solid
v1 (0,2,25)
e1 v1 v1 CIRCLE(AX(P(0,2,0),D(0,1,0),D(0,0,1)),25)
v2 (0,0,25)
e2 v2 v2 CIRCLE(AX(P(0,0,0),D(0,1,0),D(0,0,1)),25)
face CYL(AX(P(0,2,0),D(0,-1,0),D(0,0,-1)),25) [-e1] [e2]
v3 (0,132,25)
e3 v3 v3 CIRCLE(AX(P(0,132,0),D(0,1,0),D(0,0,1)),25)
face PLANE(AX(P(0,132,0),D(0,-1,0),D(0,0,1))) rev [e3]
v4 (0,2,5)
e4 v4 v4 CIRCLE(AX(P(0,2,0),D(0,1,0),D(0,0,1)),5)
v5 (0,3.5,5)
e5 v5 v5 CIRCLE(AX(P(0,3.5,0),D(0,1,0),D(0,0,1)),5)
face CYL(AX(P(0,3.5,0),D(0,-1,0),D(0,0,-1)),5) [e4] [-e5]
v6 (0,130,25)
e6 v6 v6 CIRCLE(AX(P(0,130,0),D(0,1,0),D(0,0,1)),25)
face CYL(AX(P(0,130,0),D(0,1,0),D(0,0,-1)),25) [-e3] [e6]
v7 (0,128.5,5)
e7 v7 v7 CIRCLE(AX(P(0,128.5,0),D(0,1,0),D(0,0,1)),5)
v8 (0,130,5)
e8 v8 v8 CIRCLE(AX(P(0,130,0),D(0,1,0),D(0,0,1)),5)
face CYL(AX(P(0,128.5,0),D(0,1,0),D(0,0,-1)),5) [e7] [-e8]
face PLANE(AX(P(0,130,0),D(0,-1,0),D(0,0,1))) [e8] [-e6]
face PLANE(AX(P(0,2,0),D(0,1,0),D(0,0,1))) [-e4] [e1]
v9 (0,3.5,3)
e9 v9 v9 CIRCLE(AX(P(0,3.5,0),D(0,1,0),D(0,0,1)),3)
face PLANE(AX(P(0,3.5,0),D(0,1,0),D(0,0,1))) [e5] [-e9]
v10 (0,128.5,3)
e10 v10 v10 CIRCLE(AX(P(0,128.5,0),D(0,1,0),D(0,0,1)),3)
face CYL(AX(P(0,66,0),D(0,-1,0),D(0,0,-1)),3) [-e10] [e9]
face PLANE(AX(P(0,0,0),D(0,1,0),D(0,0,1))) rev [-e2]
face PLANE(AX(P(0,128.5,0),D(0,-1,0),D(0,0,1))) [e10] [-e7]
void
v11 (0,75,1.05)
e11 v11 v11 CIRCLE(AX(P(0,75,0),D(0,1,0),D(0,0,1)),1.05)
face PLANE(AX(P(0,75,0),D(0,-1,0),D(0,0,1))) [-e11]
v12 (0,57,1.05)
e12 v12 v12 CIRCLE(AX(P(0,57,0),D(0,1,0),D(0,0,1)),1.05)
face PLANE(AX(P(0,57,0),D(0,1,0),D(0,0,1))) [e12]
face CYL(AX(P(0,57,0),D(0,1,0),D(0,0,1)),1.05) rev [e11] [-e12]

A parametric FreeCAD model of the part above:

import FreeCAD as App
import Part
import Sketcher

V = App.Vector
Q = App.Units.Quantity

doc = App.newDocument("Part")
body = doc.addObject("PartDesign::Body", "Body")

sketch1 = body.newObject("Sketcher::SketchObject", "Sketch")
sketch1.AttachmentSupport = (doc.getObject("XZ_Plane"), [""])
sketch1.MapMode = "FlatFace"
sketch1.addGeometry(Part.Circle(V(0, 0, 0), V(0, 0, 1), 25), False)
sketch1.addConstraint([
    Sketcher.Constraint("Coincident", 0, 3, -1, 1),
    Sketcher.Constraint("Diameter", 0, Q("50 mm")),
])
pad1 = body.newObject("PartDesign::Pad", "Pad")
pad1.Profile = sketch1
pad1.Length = 2
pad1.Reversed = True

sketch2 = body.newObject("Sketcher::SketchObject", "Sketch001")
sketch2.AttachmentSupport = (doc.getObject("XZ_Plane"), [""])
sketch2.MapMode = "FlatFace"
sketch2.AttachmentOffset = App.Placement(V(0, 0, -2), App.Rotation())
sketch2.addGeometry(Part.Circle(V(0, 0, 0), V(0, 0, 1), 5), False)
sketch2.addConstraint([
    Sketcher.Constraint("Coincident", 0, 3, -1, 1),
    Sketcher.Constraint("Diameter", 0, Q("10 mm")),
])
pad2 = body.newObject("PartDesign::Pad", "Pad001")
pad2.Profile = sketch2
pad2.Length = 1.5
pad2.Reversed = True

sketch3 = body.newObject("Sketcher::SketchObject", "Sketch002")
sketch3.AttachmentSupport = (doc.getObject("XZ_Plane"), [""])
sketch3.MapMode = "FlatFace"
sketch3.AttachmentOffset = App.Placement(V(0, 0, -3.5), App.Rotation())
sketch3.addGeometry(Part.Circle(V(0, 0, 0), V(0, 0, 1), 3), False)
sketch3.addConstraint([
    Sketcher.Constraint("Coincident", 0, 3, -1, 1),
    Sketcher.Constraint("Diameter", 0, Q("6 mm")),
])
pad3 = body.newObject("PartDesign::Pad", "Pad002")
pad3.Profile = sketch3
pad3.Length = 62.5
pad3.Reversed = True

sketch4 = body.newObject("Sketcher::SketchObject", "Sketch003")
sketch4.AttachmentSupport = (doc.getObject("XZ_Plane"), [""])
sketch4.MapMode = "FlatFace"
sketch4.AttachmentOffset = App.Placement(V(0, 0, -66), App.Rotation())
sketch4.addGeometry(Part.Circle(V(0, 0, 0), V(0, 0, 1), 1.1), False)
sketch4.addConstraint([
    Sketcher.Constraint("Coincident", 0, 3, -1, 1),
    Sketcher.Constraint("Diameter", 0, Q("2.1 mm")),
])
pocket1 = body.newObject("PartDesign::Pocket", "Pocket")
pocket1.Profile = sketch4
pocket1.Length = 9
pocket1.Reversed = True
body2 = doc.addObject("PartDesign::Body", "Body001")
doc.recompute()

body2.BaseFeature = body
doc.recompute()

mirroring = doc.addObject("Part::Mirroring", "Mirroring")
mirroring.Source = body
mirroring.Base = V(0, 66, 0)
mirroring.Normal = V(0, 1, 0)
body3 = doc.addObject("PartDesign::Body", "Body002")
body3.BaseFeature = mirroring
boolean = body2.newObject("PartDesign::Boolean", "Boolean")
boolean.Type = "Fuse"
boolean.addObjects([body3])
doc.recompute()
mirroring.Visibility = False

doc.recompute()
